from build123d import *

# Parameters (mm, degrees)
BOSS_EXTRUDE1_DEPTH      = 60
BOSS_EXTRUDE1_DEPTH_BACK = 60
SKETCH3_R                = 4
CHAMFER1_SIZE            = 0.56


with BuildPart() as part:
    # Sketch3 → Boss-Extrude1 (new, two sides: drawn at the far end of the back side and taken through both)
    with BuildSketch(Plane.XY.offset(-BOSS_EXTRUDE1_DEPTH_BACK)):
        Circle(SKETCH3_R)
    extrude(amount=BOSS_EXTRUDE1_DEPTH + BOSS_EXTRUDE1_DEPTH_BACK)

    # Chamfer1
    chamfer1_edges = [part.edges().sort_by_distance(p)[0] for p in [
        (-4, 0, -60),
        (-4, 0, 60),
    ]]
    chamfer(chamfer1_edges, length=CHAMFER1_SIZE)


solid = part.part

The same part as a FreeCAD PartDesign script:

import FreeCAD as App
import Part
import Sketcher
Q = App.Units.Quantity


def edges_at(feature, points):
    """Names of the edges that pass closest to the given points."""
    edges = feature.Shape.Edges
    near = lambda p: min(range(len(edges)), key=lambda i: edges[i].distToShape(Part.Vertex(*p))[0])
    return sorted({f"Edge{near(p) + 1}" for p in points})

doc = App.newDocument("Part")
body = doc.addObject("PartDesign::Body", "Body")

sketch1 = doc.addObject("Sketcher::SketchObject", "Sketch")
body.addObject(sketch1)
sketch1.AttachmentSupport = (doc.XY_Plane, [""])
sketch1.MapMode = "FlatFace"
sketch1.addGeometry(Part.Circle(App.Vector(0, 0, 0), App.Vector(0, 0, 1), 4), False)
sketch1.addConstraint(Sketcher.Constraint("Coincident", 0, 3, -1, 1))
sketch1.addConstraint(Sketcher.Constraint("Diameter", 0, Q("8 mm")))
pad1 = doc.addObject("PartDesign::Pad", "Pad")
body.addObject(pad1)
pad1.Profile = sketch1
pad1.Type = "TwoLengths"
pad1.Length = 60
pad1.Length2 = 60
doc.recompute()

chamfer = doc.addObject("PartDesign::Chamfer", "Chamfer")
body.addObject(chamfer)
chamfer.Base = (pad1, edges_at(pad1, [(-4, 0, -60), (-4, 0, 60)]))
chamfer.Size = 0.56

doc.recompute()
